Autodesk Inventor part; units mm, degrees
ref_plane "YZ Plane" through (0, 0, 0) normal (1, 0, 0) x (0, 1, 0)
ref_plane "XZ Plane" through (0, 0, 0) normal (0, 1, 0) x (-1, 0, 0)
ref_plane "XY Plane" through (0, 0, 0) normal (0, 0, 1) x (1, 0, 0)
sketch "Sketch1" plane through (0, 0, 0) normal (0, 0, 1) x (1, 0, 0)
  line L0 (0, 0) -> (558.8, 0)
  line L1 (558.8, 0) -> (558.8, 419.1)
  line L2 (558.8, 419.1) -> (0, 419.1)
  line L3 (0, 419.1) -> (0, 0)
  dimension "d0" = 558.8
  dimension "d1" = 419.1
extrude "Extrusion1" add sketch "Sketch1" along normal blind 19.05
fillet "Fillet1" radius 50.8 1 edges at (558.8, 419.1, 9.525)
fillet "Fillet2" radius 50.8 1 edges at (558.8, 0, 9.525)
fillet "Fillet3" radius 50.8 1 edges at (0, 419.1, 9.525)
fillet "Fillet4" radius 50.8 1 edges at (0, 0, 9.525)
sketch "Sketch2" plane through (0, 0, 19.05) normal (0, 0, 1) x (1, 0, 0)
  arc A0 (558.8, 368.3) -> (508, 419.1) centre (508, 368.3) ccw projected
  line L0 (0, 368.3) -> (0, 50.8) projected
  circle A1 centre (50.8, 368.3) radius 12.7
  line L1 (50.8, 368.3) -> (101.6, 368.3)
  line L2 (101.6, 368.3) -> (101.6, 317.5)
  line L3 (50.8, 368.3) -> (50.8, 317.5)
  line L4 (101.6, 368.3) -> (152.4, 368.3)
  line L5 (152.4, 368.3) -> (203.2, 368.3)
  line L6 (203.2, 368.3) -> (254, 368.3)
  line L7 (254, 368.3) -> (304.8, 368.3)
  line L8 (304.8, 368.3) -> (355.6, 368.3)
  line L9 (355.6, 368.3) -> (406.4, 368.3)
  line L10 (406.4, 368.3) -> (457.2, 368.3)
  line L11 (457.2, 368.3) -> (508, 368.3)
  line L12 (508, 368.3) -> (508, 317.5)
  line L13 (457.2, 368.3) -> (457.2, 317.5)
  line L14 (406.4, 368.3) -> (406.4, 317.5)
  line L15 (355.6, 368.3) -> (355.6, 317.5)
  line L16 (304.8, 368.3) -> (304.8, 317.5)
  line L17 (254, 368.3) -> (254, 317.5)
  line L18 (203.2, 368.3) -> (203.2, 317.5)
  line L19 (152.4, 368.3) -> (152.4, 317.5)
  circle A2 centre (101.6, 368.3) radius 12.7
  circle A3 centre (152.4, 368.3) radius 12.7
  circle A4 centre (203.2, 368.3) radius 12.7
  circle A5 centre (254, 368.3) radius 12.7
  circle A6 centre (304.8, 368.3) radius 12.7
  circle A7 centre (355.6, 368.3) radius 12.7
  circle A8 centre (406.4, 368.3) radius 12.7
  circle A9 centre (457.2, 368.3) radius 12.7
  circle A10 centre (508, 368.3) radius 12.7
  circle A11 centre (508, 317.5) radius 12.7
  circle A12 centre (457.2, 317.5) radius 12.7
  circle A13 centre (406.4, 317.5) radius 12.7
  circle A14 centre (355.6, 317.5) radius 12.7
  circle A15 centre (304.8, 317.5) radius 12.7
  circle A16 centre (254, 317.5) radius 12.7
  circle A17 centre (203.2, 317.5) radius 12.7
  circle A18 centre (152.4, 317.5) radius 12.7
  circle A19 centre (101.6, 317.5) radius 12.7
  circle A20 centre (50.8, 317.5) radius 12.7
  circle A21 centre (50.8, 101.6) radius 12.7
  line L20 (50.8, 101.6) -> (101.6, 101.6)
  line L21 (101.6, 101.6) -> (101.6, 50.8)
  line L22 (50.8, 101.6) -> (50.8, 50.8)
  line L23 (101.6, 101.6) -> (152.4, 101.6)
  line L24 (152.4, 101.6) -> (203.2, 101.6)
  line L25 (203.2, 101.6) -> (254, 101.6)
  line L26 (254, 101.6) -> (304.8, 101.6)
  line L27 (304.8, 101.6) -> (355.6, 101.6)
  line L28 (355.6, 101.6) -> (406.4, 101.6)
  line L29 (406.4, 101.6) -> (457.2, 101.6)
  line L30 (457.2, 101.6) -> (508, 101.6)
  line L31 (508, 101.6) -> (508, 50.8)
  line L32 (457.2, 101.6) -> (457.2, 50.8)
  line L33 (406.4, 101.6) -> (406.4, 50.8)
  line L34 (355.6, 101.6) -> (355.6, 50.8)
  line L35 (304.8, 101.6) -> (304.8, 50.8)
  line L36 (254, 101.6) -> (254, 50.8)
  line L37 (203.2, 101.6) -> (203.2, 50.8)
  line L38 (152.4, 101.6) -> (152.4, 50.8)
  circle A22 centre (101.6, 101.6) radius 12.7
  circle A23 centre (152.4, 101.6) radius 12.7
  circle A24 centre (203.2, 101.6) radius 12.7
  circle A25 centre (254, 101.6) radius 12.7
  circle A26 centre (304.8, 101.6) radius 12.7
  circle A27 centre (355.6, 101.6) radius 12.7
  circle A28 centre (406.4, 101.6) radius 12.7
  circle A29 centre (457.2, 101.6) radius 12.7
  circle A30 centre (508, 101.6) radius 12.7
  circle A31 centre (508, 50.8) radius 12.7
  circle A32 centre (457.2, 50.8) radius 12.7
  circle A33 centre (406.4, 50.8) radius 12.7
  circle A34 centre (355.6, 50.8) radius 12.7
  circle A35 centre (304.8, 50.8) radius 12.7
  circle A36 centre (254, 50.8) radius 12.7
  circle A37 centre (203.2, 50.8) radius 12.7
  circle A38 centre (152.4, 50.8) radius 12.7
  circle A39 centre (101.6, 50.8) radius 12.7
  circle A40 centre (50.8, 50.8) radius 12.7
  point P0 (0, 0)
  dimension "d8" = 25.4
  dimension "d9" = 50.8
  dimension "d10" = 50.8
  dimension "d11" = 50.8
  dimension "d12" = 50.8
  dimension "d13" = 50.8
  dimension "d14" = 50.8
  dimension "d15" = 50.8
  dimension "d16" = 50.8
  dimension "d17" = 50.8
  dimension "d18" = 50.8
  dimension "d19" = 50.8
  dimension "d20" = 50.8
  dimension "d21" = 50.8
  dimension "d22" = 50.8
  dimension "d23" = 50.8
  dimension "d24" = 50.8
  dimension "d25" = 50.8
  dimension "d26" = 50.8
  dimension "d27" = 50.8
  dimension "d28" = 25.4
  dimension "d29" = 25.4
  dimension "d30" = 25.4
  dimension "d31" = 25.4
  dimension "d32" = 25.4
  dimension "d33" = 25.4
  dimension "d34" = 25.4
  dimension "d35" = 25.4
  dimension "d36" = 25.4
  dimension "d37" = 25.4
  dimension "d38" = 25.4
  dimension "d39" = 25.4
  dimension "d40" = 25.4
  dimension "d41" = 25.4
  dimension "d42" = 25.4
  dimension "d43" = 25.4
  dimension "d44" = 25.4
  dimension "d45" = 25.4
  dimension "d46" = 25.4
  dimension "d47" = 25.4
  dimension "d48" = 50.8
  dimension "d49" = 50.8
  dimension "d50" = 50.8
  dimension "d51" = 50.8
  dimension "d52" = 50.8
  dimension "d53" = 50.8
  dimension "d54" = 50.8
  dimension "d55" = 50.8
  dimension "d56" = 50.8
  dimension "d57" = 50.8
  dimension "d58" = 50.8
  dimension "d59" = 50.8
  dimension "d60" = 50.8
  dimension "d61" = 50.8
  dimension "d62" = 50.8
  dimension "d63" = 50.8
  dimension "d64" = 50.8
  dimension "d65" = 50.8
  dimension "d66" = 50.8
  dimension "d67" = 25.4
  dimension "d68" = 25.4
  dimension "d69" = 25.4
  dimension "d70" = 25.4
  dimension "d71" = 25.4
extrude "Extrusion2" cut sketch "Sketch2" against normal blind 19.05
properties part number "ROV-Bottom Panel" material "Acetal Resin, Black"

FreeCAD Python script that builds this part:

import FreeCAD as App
import Part
import Sketcher

V = App.Vector
Q = App.Units.Quantity


def edges_at(feature, points):
    """Names of the edges that pass closest to the given points."""
    edges = feature.Shape.Edges
    near = lambda p: min(range(len(edges)), key=lambda i: edges[i].distToShape(Part.Vertex(*p))[0])
    return sorted({f"Edge{near(p) + 1}" for p in points})

doc = App.newDocument("Part")
body = doc.addObject("PartDesign::Body", "Body")

# Sketch on XY plane
sketch1 = body.newObject("Sketcher::SketchObject", "Sketch")
sketch1.AttachmentSupport = (doc.getObject("XY_Plane"), [""])
sketch1.MapMode = "FlatFace"
sketch1.addGeometry(Part.LineSegment(V(0, 419, 0), V(0, 0, 0)), False)
sketch1.addGeometry(Part.LineSegment(V(0, 0, 0), V(559, 0, 0)), False)
sketch1.addGeometry(Part.LineSegment(V(559, 0, 0), V(559, 419, 0)), False)
sketch1.addGeometry(Part.LineSegment(V(559, 419, 0), V(0, 419, 0)), False)
sketch1.addConstraint(Sketcher.Constraint("Coincident", 0, 2, 1, 1))
sketch1.addConstraint(Sketcher.Constraint("Coincident", 1, 2, 2, 1))
sketch1.addConstraint(Sketcher.Constraint("Coincident", 2, 2, 3, 1))
sketch1.addConstraint(Sketcher.Constraint("Coincident", 3, 2, 0, 1))
sketch1.addConstraint(Sketcher.Constraint("Vertical", 0))
sketch1.addConstraint(Sketcher.Constraint("Horizontal", 1))
sketch1.addConstraint(Sketcher.Constraint("Vertical", 2))
sketch1.addConstraint(Sketcher.Constraint("Horizontal", 3))
sketch1.addConstraint(Sketcher.Constraint("Coincident", 0, 2, -1, 1))
sketch1.addConstraint(Sketcher.Constraint("DistanceX", 1, 1, 1, 2, Q("22 in")))
sketch1.addConstraint(Sketcher.Constraint("DistanceY", 0, 2, 0, 1, Q("16.5 in")))
pad1 = body.newObject("PartDesign::Pad", "Pad")
pad1.Profile = sketch1
pad1.Length = Q("0.75 in")
doc.recompute()

fillet = body.newObject("PartDesign::Fillet", "Fillet")
fillet.Base = (pad1, edges_at(pad1, [(558.8, 419.1, 9.525)]))
fillet.Radius = Q("2 in")
doc.recompute()

fillet2 = body.newObject("PartDesign::Fillet", "Fillet001")
fillet2.Base = (fillet, edges_at(fillet, [(558.8, 0, 9.525)]))
fillet2.Radius = Q("2 in")
doc.recompute()

fillet3 = body.newObject("PartDesign::Fillet", "Fillet002")
fillet3.Base = (fillet2, edges_at(fillet2, [(0, 419.1, 9.525)]))
fillet3.Radius = Q("2 in")
doc.recompute()

fillet4 = body.newObject("PartDesign::Fillet", "Fillet003")
fillet4.Base = (fillet3, edges_at(fillet3, [(0, 0, 9.525)]))
fillet4.Radius = Q("2 in")

# Sketch on XY plane
sketch2 = body.newObject("Sketcher::SketchObject", "Sketch001")
sketch2.AttachmentSupport = (doc.getObject("XY_Plane"), [""])
sketch2.MapMode = "FlatFace"
sketch2.AttachmentOffset = App.Placement(V(0, 0, 0.75 * 25.4), App.Rotation())
sketch2.addGeometry(Part.Circle(V(51, 368, 0), V(0, 0, 1), 13), False)
sketch2.addGeometry(Part.Circle(V(51, 318, 0), V(0, 0, 1), 13), False)
sketch2.addGeometry(Part.Circle(V(508, 318, 0), V(0, 0, 1), 13), False)
sketch2.addGeometry(Part.Circle(V(508, 368, 0), V(0, 0, 1), 13), False)
sketch2.addGeometry(Part.Circle(V(457, 318, 0), V(0, 0, 1), 13), False)
sketch2.addGeometry(Part.Circle(V(457, 368, 0), V(0, 0, 1), 13), False)
sketch2.addGeometry(Part.Circle(V(406, 318, 0), V(0, 0, 1), 13), False)
sketch2.addGeometry(Part.Circle(V(406, 368, 0), V(0, 0, 1), 13), False)
sketch2.addGeometry(Part.Circle(V(356, 318, 0), V(0, 0, 1), 13), False)
sketch2.addGeometry(Part.Circle(V(356, 368, 0), V(0, 0, 1), 13), False)
sketch2.addGeometry(Part.Circle(V(305, 318, 0), V(0, 0, 1), 13), False)
sketch2.addGeometry(Part.Circle(V(305, 368, 0), V(0, 0, 1), 13), False)
sketch2.addGeometry(Part.Circle(V(254, 318, 0), V(0, 0, 1), 13), False)
sketch2.addGeometry(Part.Circle(V(254, 368, 0), V(0, 0, 1), 13), False)
sketch2.addGeometry(Part.Circle(V(203, 318, 0), V(0, 0, 1), 13), False)
sketch2.addGeometry(Part.Circle(V(203, 368, 0), V(0, 0, 1), 13), False)
sketch2.addGeometry(Part.Circle(V(152, 318, 0), V(0, 0, 1), 13), False)
sketch2.addGeometry(Part.Circle(V(152, 368, 0), V(0, 0, 1), 13), False)
sketch2.addGeometry(Part.Circle(V(102, 318, 0), V(0, 0, 1), 13), False)
sketch2.addGeometry(Part.Circle(V(102, 368, 0), V(0, 0, 1), 13), False)
sketch2.addGeometry(Part.Circle(V(51, 102, 0), V(0, 0, 1), 13), False)
sketch2.addGeometry(Part.Circle(V(51, 51, 0), V(0, 0, 1), 13), False)
sketch2.addGeometry(Part.Circle(V(508, 51, 0), V(0, 0, 1), 13), False)
sketch2.addGeometry(Part.Circle(V(508, 102, 0), V(0, 0, 1), 13), False)
sketch2.addGeometry(Part.Circle(V(457, 51, 0), V(0, 0, 1), 13), False)
sketch2.addGeometry(Part.Circle(V(457, 102, 0), V(0, 0, 1), 13), False)
sketch2.addGeometry(Part.Circle(V(406, 51, 0), V(0, 0, 1), 13), False)
sketch2.addGeometry(Part.Circle(V(406, 102, 0), V(0, 0, 1), 13), False)
sketch2.addGeometry(Part.Circle(V(356, 51, 0), V(0, 0, 1), 13), False)
sketch2.addGeometry(Part.Circle(V(356, 102, 0), V(0, 0, 1), 13), False)
sketch2.addGeometry(Part.Circle(V(305, 51, 0), V(0, 0, 1), 13), False)
sketch2.addGeometry(Part.Circle(V(305, 102, 0), V(0, 0, 1), 13), False)
sketch2.addGeometry(Part.Circle(V(254, 51, 0), V(0, 0, 1), 13), False)
sketch2.addGeometry(Part.Circle(V(254, 102, 0), V(0, 0, 1), 13), False)
sketch2.addGeometry(Part.Circle(V(203, 51, 0), V(0, 0, 1), 13), False)
sketch2.addGeometry(Part.Circle(V(203, 102, 0), V(0, 0, 1), 13), False)
sketch2.addGeometry(Part.Circle(V(152, 51, 0), V(0, 0, 1), 13), False)
sketch2.addGeometry(Part.Circle(V(152, 102, 0), V(0, 0, 1), 13), False)
sketch2.addGeometry(Part.Circle(V(102, 51, 0), V(0, 0, 1), 13), False)
sketch2.addGeometry(Part.Circle(V(102, 102, 0), V(0, 0, 1), 13), False)
sketch2.addConstraint(Sketcher.Constraint("Equal", 0, 1))
sketch2.addConstraint(Sketcher.Constraint("Equal", 1, 2))
sketch2.addConstraint(Sketcher.Constraint("Equal", 2, 3))
sketch2.addConstraint(Sketcher.Constraint("Equal", 3, 4))
sketch2.addConstraint(Sketcher.Constraint("Equal", 4, 5))
sketch2.addConstraint(Sketcher.Constraint("Equal", 5, 6))
sketch2.addConstraint(Sketcher.Constraint("Equal", 6, 7))
sketch2.addConstraint(Sketcher.Constraint("Equal", 7, 8))
sketch2.addConstraint(Sketcher.Constraint("Equal", 8, 9))
sketch2.addConstraint(Sketcher.Constraint("Equal", 9, 10))
sketch2.addConstraint(Sketcher.Constraint("Equal", 10, 11))
sketch2.addConstraint(Sketcher.Constraint("Equal", 11, 12))
sketch2.addConstraint(Sketcher.Constraint("Equal", 12, 13))
sketch2.addConstraint(Sketcher.Constraint("Equal", 13, 14))
sketch2.addConstraint(Sketcher.Constraint("Equal", 14, 15))
sketch2.addConstraint(Sketcher.Constraint("Equal", 15, 16))
sketch2.addConstraint(Sketcher.Constraint("Equal", 16, 17))
sketch2.addConstraint(Sketcher.Constraint("Equal", 17, 18))
sketch2.addConstraint(Sketcher.Constraint("Equal", 18, 19))
sketch2.addConstraint(Sketcher.Constraint("Equal", 19, 20))
sketch2.addConstraint(Sketcher.Constraint("Equal", 20, 21))
sketch2.addConstraint(Sketcher.Constraint("Equal", 21, 22))
sketch2.addConstraint(Sketcher.Constraint("Equal", 22, 23))
sketch2.addConstraint(Sketcher.Constraint("Equal", 23, 24))
sketch2.addConstraint(Sketcher.Constraint("Equal", 24, 25))
sketch2.addConstraint(Sketcher.Constraint("Equal", 25, 26))
sketch2.addConstraint(Sketcher.Constraint("Equal", 26, 27))
sketch2.addConstraint(Sketcher.Constraint("Equal", 27, 28))
sketch2.addConstraint(Sketcher.Constraint("Equal", 28, 29))
sketch2.addConstraint(Sketcher.Constraint("Equal", 29, 30))
sketch2.addConstraint(Sketcher.Constraint("Equal", 30, 31))
sketch2.addConstraint(Sketcher.Constraint("Equal", 31, 32))
sketch2.addConstraint(Sketcher.Constraint("Equal", 32, 33))
sketch2.addConstraint(Sketcher.Constraint("Equal", 33, 34))
sketch2.addConstraint(Sketcher.Constraint("Equal", 34, 35))
sketch2.addConstraint(Sketcher.Constraint("Equal", 35, 36))
sketch2.addConstraint(Sketcher.Constraint("Equal", 36, 37))
sketch2.addConstraint(Sketcher.Constraint("Equal", 37, 38))
sketch2.addConstraint(Sketcher.Constraint("Equal", 38, 39))
sketch2.addConstraint(Sketcher.Constraint("Horizontal", 1, 3, 2, 3))
sketch2.addConstraint(Sketcher.Constraint("Horizontal", 0, 3, 3, 3))
sketch2.addConstraint(Sketcher.Constraint("Horizontal", 2, 3, 4, 3))
sketch2.addConstraint(Sketcher.Constraint("Horizontal", 3, 3, 5, 3))
sketch2.addConstraint(Sketcher.Constraint("Horizontal", 4, 3, 6, 3))
sketch2.addConstraint(Sketcher.Constraint("Horizontal", 5, 3, 7, 3))
sketch2.addConstraint(Sketcher.Constraint("Horizontal", 6, 3, 8, 3))
sketch2.addConstraint(Sketcher.Constraint("Horizontal", 7, 3, 9, 3))
sketch2.addConstraint(Sketcher.Constraint("Horizontal", 8, 3, 10, 3))
sketch2.addConstraint(Sketcher.Constraint("Horizontal", 9, 3, 11, 3))
sketch2.addConstraint(Sketcher.Constraint("Horizontal", 10, 3, 12, 3))
sketch2.addConstraint(Sketcher.Constraint("Horizontal", 11, 3, 13, 3))
sketch2.addConstraint(Sketcher.Constraint("Horizontal", 12, 3, 14, 3))
sketch2.addConstraint(Sketcher.Constraint("Horizontal", 13, 3, 15, 3))
sketch2.addConstraint(Sketcher.Constraint("Horizontal", 14, 3, 16, 3))
sketch2.addConstraint(Sketcher.Constraint("Horizontal", 15, 3, 17, 3))
sketch2.addConstraint(Sketcher.Constraint("Horizontal", 16, 3, 18, 3))
sketch2.addConstraint(Sketcher.Constraint("Horizontal", 17, 3, 19, 3))
sketch2.addConstraint(Sketcher.Constraint("Horizontal", 21, 3, 22, 3))
sketch2.addConstraint(Sketcher.Constraint("Horizontal", 20, 3, 23, 3))
sketch2.addConstraint(Sketcher.Constraint("Horizontal", 22, 3, 24, 3))
sketch2.addConstraint(Sketcher.Constraint("Horizontal", 23, 3, 25, 3))
sketch2.addConstraint(Sketcher.Constraint("Horizontal", 24, 3, 26, 3))
sketch2.addConstraint(Sketcher.Constraint("Horizontal", 25, 3, 27, 3))
sketch2.addConstraint(Sketcher.Constraint("Horizontal", 26, 3, 28, 3))
sketch2.addConstraint(Sketcher.Constraint("Horizontal", 27, 3, 29, 3))
sketch2.addConstraint(Sketcher.Constraint("Horizontal", 28, 3, 30, 3))
sketch2.addConstraint(Sketcher.Constraint("Horizontal", 29, 3, 31, 3))
sketch2.addConstraint(Sketcher.Constraint("Horizontal", 30, 3, 32, 3))
sketch2.addConstraint(Sketcher.Constraint("Horizontal", 31, 3, 33, 3))
sketch2.addConstraint(Sketcher.Constraint("Horizontal", 32, 3, 34, 3))
sketch2.addConstraint(Sketcher.Constraint("Horizontal", 33, 3, 35, 3))
sketch2.addConstraint(Sketcher.Constraint("Horizontal", 34, 3, 36, 3))
sketch2.addConstraint(Sketcher.Constraint("Horizontal", 35, 3, 37, 3))
sketch2.addConstraint(Sketcher.Constraint("Horizontal", 36, 3, 38, 3))
sketch2.addConstraint(Sketcher.Constraint("Horizontal", 37, 3, 39, 3))
sketch2.addConstraint(Sketcher.Constraint("Vertical", 0, 3, 1, 3))
sketch2.addConstraint(Sketcher.Constraint("Vertical", 2, 3, 3, 3))
sketch2.addConstraint(Sketcher.Constraint("Vertical", 4, 3, 5, 3))
sketch2.addConstraint(Sketcher.Constraint("Vertical", 6, 3, 7, 3))
sketch2.addConstraint(Sketcher.Constraint("Vertical", 8, 3, 9, 3))
sketch2.addConstraint(Sketcher.Constraint("Vertical", 10, 3, 11, 3))
sketch2.addConstraint(Sketcher.Constraint("Vertical", 12, 3, 13, 3))
sketch2.addConstraint(Sketcher.Constraint("Vertical", 14, 3, 15, 3))
sketch2.addConstraint(Sketcher.Constraint("Vertical", 16, 3, 17, 3))
sketch2.addConstraint(Sketcher.Constraint("Vertical", 18, 3, 19, 3))
sketch2.addConstraint(Sketcher.Constraint("Vertical", 1, 3, 20, 3))
sketch2.addConstraint(Sketcher.Constraint("Vertical", 20, 3, 21, 3))
sketch2.addConstraint(Sketcher.Constraint("Vertical", 3, 3, 22, 3))
sketch2.addConstraint(Sketcher.Constraint("Vertical", 22, 3, 23, 3))
sketch2.addConstraint(Sketcher.Constraint("Vertical", 5, 3, 24, 3))
sketch2.addConstraint(Sketcher.Constraint("Vertical", 24, 3, 25, 3))
sketch2.addConstraint(Sketcher.Constraint("Vertical", 7, 3, 26, 3))
sketch2.addConstraint(Sketcher.Constraint("Vertical", 26, 3, 27, 3))
sketch2.addConstraint(Sketcher.Constraint("Vertical", 9, 3, 28, 3))
sketch2.addConstraint(Sketcher.Constraint("Vertical", 28, 3, 29, 3))
sketch2.addConstraint(Sketcher.Constraint("Vertical", 11, 3, 30, 3))
sketch2.addConstraint(Sketcher.Constraint("Vertical", 30, 3, 31, 3))
sketch2.addConstraint(Sketcher.Constraint("Vertical", 13, 3, 32, 3))
sketch2.addConstraint(Sketcher.Constraint("Vertical", 32, 3, 33, 3))
sketch2.addConstraint(Sketcher.Constraint("Vertical", 15, 3, 34, 3))
sketch2.addConstraint(Sketcher.Constraint("Vertical", 34, 3, 35, 3))
sketch2.addConstraint(Sketcher.Constraint("Vertical", 17, 3, 36, 3))
sketch2.addConstraint(Sketcher.Constraint("Vertical", 36, 3, 37, 3))
sketch2.addConstraint(Sketcher.Constraint("Vertical", 19, 3, 38, 3))
sketch2.addConstraint(Sketcher.Constraint("Vertical", 38, 3, 39, 3))
sketch2.addConstraint(Sketcher.Constraint("Diameter", 0, Q("1 in")))
sketch2.addConstraint(Sketcher.Constraint("DistanceX", -1, 1, 0, 3, Q("2 in")))
sketch2.addConstraint(Sketcher.Constraint("DistanceY", -1, 1, 21, 3, Q("2 in")))
sketch2.addConstraint(Sketcher.Constraint("DistanceY", 1, 3, 0, 3, Q("2 in")))
sketch2.addConstraint(Sketcher.Constraint("DistanceX", 4, 3, 2, 3, Q("2 in")))
sketch2.addConstraint(Sketcher.Constraint("DistanceX", 6, 3, 4, 3, Q("2 in")))
sketch2.addConstraint(Sketcher.Constraint("DistanceX", 8, 3, 6, 3, Q("2 in")))
sketch2.addConstraint(Sketcher.Constraint("DistanceX", 10, 3, 8, 3, Q("2 in")))
sketch2.addConstraint(Sketcher.Constraint("DistanceX", 12, 3, 10, 3, Q("2 in")))
sketch2.addConstraint(Sketcher.Constraint("DistanceX", 14, 3, 12, 3, Q("2 in")))
sketch2.addConstraint(Sketcher.Constraint("DistanceX", 16, 3, 14, 3, Q("2 in")))
sketch2.addConstraint(Sketcher.Constraint("DistanceX", 1, 3, 18, 3, Q("2 in")))
sketch2.addConstraint(Sketcher.Constraint("DistanceX", 18, 3, 16, 3, Q("2 in")))
sketch2.addConstraint(Sketcher.Constraint("DistanceY", 21, 3, 20, 3, Q("2 in")))
sketch2.addConstraint(Sketcher.Constraint("DistanceY", -1, 1, 0, 3, Q("14.5 in")))
pocket1 = body.newObject("PartDesign::Pocket", "Pocket")
pocket1.Profile = sketch2
pocket1.Length = Q("0.75 in")

doc.recompute()
